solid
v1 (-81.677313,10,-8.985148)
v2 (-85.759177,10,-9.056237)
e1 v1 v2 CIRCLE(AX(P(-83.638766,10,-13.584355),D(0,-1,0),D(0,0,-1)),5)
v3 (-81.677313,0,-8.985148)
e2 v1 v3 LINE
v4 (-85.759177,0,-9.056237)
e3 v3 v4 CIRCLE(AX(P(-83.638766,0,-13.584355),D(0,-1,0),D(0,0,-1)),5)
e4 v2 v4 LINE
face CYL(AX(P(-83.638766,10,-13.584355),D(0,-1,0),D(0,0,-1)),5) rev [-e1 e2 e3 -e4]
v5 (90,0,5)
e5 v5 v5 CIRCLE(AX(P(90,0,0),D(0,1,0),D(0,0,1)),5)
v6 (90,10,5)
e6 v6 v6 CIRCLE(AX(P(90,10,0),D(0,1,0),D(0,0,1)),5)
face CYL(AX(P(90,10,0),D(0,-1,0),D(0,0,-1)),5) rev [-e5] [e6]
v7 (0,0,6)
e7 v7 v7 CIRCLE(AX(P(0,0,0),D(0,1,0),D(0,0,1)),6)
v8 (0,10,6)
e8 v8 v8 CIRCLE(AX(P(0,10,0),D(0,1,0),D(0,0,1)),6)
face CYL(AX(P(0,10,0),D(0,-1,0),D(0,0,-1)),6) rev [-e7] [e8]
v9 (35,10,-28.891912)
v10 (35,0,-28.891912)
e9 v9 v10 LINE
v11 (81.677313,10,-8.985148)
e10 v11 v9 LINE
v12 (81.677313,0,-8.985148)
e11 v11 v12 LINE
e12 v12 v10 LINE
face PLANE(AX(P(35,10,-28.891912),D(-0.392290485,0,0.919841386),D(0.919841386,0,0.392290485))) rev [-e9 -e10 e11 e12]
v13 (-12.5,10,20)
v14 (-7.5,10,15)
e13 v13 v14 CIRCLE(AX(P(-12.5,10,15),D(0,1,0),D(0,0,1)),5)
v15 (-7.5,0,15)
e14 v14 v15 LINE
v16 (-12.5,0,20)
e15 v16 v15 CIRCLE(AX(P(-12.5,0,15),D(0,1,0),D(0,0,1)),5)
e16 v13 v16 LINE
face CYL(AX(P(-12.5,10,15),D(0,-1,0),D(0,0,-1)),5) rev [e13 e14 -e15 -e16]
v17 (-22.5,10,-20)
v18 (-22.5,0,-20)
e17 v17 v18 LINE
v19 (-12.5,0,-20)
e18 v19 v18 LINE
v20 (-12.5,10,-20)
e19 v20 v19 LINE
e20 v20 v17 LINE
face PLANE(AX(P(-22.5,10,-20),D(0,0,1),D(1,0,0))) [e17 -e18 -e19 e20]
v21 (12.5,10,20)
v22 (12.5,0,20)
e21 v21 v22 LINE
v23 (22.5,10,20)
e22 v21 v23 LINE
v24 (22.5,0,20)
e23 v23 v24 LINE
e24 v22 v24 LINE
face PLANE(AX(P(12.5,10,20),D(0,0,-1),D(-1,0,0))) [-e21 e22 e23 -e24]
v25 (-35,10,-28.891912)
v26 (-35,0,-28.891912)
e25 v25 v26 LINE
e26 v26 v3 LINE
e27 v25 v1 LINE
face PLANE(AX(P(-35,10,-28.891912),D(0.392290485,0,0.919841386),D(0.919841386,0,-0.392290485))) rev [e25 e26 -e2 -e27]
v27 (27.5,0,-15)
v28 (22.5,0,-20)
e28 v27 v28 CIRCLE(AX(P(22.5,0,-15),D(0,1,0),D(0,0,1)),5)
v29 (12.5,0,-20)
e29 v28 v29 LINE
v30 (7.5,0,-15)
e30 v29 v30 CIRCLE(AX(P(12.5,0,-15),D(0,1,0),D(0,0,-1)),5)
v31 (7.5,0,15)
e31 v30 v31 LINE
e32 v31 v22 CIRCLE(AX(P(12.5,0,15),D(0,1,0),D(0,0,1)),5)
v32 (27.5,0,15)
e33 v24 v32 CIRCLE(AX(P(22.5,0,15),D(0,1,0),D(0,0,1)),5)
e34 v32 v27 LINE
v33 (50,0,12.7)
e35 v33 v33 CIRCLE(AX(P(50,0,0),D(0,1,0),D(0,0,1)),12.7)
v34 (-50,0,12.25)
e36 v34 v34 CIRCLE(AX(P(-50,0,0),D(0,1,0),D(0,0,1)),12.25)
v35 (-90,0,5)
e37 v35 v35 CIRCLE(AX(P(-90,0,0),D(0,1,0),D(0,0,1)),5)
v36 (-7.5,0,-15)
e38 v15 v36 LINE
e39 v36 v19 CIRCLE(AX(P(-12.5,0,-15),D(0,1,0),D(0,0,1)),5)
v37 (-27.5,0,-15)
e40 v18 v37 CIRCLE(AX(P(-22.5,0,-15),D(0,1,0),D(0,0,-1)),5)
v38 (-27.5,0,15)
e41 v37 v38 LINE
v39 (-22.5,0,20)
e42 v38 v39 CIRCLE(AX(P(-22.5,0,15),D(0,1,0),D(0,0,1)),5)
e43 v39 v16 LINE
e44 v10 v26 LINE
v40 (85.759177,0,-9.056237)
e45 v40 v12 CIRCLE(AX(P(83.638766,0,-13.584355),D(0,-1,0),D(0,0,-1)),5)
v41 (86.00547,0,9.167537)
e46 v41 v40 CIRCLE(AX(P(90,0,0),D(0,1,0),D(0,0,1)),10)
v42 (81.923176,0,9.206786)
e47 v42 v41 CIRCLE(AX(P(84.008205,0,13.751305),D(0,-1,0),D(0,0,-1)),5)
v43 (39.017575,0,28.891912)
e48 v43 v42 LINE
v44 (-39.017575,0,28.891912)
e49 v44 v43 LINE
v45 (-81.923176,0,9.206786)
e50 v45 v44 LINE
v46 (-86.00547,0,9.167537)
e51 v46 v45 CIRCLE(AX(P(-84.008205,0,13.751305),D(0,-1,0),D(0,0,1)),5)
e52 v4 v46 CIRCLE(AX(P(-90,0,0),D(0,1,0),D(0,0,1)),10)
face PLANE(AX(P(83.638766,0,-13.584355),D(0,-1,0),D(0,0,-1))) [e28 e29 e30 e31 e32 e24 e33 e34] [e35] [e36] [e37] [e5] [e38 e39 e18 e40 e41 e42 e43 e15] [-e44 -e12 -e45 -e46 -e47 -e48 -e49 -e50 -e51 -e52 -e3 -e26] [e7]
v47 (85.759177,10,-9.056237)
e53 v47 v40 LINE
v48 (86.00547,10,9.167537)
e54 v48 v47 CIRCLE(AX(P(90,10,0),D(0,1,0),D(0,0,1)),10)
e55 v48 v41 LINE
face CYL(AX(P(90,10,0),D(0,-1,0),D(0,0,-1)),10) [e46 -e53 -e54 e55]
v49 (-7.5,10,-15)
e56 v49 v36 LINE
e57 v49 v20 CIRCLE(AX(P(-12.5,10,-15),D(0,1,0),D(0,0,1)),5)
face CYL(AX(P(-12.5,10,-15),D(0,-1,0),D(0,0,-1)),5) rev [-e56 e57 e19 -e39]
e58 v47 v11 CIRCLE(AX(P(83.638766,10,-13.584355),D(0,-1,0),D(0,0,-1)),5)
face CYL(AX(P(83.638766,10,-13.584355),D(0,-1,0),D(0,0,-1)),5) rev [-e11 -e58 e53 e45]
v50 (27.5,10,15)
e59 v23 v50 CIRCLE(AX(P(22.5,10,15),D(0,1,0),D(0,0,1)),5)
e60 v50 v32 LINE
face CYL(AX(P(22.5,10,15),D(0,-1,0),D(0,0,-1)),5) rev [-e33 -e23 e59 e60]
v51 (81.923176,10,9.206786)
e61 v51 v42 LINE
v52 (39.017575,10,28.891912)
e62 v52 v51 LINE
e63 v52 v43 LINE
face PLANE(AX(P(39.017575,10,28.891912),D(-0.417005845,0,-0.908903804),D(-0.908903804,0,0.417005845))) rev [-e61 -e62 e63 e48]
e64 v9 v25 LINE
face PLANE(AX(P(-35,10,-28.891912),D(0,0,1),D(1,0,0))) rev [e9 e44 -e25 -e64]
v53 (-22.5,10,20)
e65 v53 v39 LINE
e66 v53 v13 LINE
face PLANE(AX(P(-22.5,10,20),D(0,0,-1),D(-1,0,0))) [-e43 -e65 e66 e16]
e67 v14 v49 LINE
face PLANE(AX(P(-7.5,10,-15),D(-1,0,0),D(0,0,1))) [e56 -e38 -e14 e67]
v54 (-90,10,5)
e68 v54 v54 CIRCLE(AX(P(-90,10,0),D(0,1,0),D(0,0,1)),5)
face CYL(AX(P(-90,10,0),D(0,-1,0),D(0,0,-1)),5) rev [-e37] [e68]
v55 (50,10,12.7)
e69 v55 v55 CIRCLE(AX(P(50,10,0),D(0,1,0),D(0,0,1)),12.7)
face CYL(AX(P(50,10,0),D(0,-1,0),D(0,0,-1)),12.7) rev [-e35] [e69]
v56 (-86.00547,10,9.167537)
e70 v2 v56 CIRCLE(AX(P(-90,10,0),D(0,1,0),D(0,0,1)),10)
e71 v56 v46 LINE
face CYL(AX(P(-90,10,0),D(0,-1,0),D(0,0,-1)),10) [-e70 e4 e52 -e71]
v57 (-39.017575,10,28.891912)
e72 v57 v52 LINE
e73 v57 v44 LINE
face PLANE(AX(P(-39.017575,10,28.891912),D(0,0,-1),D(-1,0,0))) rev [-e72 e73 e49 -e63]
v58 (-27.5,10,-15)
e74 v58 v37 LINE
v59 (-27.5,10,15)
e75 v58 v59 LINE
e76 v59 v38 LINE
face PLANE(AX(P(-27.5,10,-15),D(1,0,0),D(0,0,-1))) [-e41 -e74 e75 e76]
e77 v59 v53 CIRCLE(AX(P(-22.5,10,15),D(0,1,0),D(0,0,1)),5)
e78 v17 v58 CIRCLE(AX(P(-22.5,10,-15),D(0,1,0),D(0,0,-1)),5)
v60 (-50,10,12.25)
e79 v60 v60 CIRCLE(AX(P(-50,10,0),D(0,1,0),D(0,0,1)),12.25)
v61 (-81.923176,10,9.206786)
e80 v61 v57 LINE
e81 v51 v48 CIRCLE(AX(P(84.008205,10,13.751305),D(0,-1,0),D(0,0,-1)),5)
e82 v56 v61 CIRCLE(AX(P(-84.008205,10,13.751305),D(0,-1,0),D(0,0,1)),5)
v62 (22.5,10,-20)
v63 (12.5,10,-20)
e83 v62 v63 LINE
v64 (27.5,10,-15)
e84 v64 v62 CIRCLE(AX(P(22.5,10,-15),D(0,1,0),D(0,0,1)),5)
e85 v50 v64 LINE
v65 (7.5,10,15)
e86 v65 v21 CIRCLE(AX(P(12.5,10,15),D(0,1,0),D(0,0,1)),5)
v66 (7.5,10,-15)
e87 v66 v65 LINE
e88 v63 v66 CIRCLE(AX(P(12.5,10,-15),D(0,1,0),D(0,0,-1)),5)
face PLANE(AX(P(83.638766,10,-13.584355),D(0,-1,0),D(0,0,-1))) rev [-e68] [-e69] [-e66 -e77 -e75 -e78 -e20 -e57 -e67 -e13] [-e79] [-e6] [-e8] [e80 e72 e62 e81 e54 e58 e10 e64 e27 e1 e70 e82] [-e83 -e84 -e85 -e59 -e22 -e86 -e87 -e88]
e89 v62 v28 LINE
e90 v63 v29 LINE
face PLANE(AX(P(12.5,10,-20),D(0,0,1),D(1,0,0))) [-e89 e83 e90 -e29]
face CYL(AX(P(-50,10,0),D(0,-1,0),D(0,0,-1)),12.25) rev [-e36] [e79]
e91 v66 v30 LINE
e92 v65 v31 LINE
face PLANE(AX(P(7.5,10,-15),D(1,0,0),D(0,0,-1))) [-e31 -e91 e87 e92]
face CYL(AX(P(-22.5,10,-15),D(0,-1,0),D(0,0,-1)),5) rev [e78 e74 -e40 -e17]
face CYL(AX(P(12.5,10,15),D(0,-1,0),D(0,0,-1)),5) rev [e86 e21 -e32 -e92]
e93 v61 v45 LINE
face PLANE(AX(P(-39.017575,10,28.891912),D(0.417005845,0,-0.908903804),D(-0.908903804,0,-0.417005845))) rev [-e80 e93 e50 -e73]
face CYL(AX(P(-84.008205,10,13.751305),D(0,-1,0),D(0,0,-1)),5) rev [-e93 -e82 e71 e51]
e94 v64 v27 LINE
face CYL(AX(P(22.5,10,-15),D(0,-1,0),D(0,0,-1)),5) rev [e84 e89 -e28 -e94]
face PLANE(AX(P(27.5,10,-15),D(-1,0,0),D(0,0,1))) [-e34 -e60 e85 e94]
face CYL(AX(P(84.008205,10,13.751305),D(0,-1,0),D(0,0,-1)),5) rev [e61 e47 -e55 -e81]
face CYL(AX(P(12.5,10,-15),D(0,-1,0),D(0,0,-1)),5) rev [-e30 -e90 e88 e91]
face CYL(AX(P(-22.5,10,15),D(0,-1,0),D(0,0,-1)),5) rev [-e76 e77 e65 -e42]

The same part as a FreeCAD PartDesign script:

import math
import FreeCAD as App
import Part
import Sketcher
Q = App.Units.Quantity

doc = App.newDocument("Part")
body = doc.addObject("PartDesign::Body", "Body")

sketch1 = body.newObject("Sketcher::SketchObject", "Sketch")
sketch1.AttachmentSupport = (doc.getObject("XZ_Plane"), [""])
sketch1.MapMode = "FlatFace"
sketch1.addGeometry(Part.LineSegment(App.Vector(35, -28.891912, 0), App.Vector(-35, -28.891912, 0)), False)
sketch1.addGeometry(Part.LineSegment(App.Vector(-35, -28.891912, 0), App.Vector(-81.677313, -8.985148, 0)), False)
sketch1.addGeometry(Part.ArcOfCircle(Part.Circle(App.Vector(-83.638766, -13.584355, 0), App.Vector(0, 0, 1), 5), math.radians(66.902905), math.radians(115.09259)), False)
sketch1.addGeometry(Part.ArcOfCircle(Part.Circle(App.Vector(-90, 0, 0), App.Vector(0, 0, 1), 10), math.radians(66.456013), math.radians(295.09259)), False)
sketch1.addGeometry(Part.ArcOfCircle(Part.Circle(App.Vector(-84.008205, 13.751305, 0), App.Vector(0, 0, 1), 5), math.radians(-113.543987), math.radians(-65.354302)), False)
sketch1.addGeometry(Part.LineSegment(App.Vector(-81.923176, 9.206786, 0), App.Vector(-39.017575, 28.891912, 0)), False)
sketch1.addGeometry(Part.LineSegment(App.Vector(-39.017575, 28.891912, 0), App.Vector(39.017575, 28.891912, 0)), False)
sketch1.addGeometry(Part.LineSegment(App.Vector(39.017575, 28.891912, 0), App.Vector(81.923176, 9.206786, 0)), False)
sketch1.addGeometry(Part.ArcOfCircle(Part.Circle(App.Vector(84.008205, 13.751305, 0), App.Vector(0, 0, 1), 5), math.radians(-114.645698), math.radians(-66.456013)), False)
sketch1.addGeometry(Part.ArcOfCircle(Part.Circle(App.Vector(90, 0, 0), App.Vector(0, 0, 1), 10), math.radians(-115.09259), math.radians(113.543987)), False)
sketch1.addGeometry(Part.ArcOfCircle(Part.Circle(App.Vector(83.638766, -13.584355, 0), App.Vector(0, 0, 1), 5), math.radians(64.90741), math.radians(113.097095)), False)
sketch1.addGeometry(Part.LineSegment(App.Vector(81.677313, -8.985148, 0), App.Vector(35, -28.891912, 0)), False)
sketch1.addGeometry(Part.Circle(App.Vector(90, 0, 0), App.Vector(0, 0, 1), 5), False)
sketch1.addGeometry(Part.Circle(App.Vector(50, 0, 0), App.Vector(0, 0, 1), 12.7), False)
sketch1.addGeometry(Part.LineSegment(App.Vector(12.5, -20, 0), App.Vector(22.5, -20, 0)), False)
sketch1.addGeometry(Part.ArcOfCircle(Part.Circle(App.Vector(22.5, -15, 0), App.Vector(0, 0, 1), 5), math.radians(-90), math.radians(0)), False)
sketch1.addGeometry(Part.LineSegment(App.Vector(27.5, -15, 0), App.Vector(27.5, 15, 0)), False)
sketch1.addGeometry(Part.ArcOfCircle(Part.Circle(App.Vector(22.5, 15, 0), App.Vector(0, 0, 1), 5), math.radians(0), math.radians(90)), False)
sketch1.addGeometry(Part.LineSegment(App.Vector(22.5, 20, 0), App.Vector(12.5, 20, 0)), False)
sketch1.addGeometry(Part.ArcOfCircle(Part.Circle(App.Vector(12.5, 15, 0), App.Vector(0, 0, 1), 5), math.radians(90), math.radians(180)), False)
sketch1.addGeometry(Part.LineSegment(App.Vector(7.5, 15, 0), App.Vector(7.5, -15, 0)), False)
sketch1.addGeometry(Part.ArcOfCircle(Part.Circle(App.Vector(12.5, -15, 0), App.Vector(0, 0, 1), 5), math.radians(180), math.radians(270)), False)
sketch1.addGeometry(Part.Circle(App.Vector(0, 0, 0), App.Vector(0, 0, 1), 6), False)
sketch1.addGeometry(Part.LineSegment(App.Vector(-22.5, -20, 0), App.Vector(-12.5, -20, 0)), False)
sketch1.addGeometry(Part.ArcOfCircle(Part.Circle(App.Vector(-12.5, -15, 0), App.Vector(0, 0, 1), 5), math.radians(-90), math.radians(0)), False)
sketch1.addGeometry(Part.LineSegment(App.Vector(-7.5, -15, 0), App.Vector(-7.5, 15, 0)), False)
sketch1.addGeometry(Part.ArcOfCircle(Part.Circle(App.Vector(-12.5, 15, 0), App.Vector(0, 0, 1), 5), math.radians(0), math.radians(90)), False)
sketch1.addGeometry(Part.LineSegment(App.Vector(-12.5, 20, 0), App.Vector(-22.5, 20, 0)), False)
sketch1.addGeometry(Part.ArcOfCircle(Part.Circle(App.Vector(-22.5, 15, 0), App.Vector(0, 0, 1), 5), math.radians(90), math.radians(180)), False)
sketch1.addGeometry(Part.LineSegment(App.Vector(-27.5, 15, 0), App.Vector(-27.5, -15, 0)), False)
sketch1.addGeometry(Part.ArcOfCircle(Part.Circle(App.Vector(-22.5, -15, 0), App.Vector(0, 0, 1), 5), math.radians(180), math.radians(270)), False)
sketch1.addGeometry(Part.Circle(App.Vector(-50, 0, 0), App.Vector(0, 0, 1), 12.25), False)
sketch1.addGeometry(Part.Circle(App.Vector(-90, 0, 0), App.Vector(0, 0, 1), 5), False)
sketch1.addConstraint(Sketcher.Constraint("Coincident", 0, 2, 1, 1))
sketch1.addConstraint(Sketcher.Constraint("Tangent", 1, 2, 2, 1))
sketch1.addConstraint(Sketcher.Constraint("Tangent", 2, 2, 3, 2))
sketch1.addConstraint(Sketcher.Constraint("Tangent", 3, 1, 4, 1))
sketch1.addConstraint(Sketcher.Constraint("Tangent", 4, 2, 5, 1))
sketch1.addConstraint(Sketcher.Constraint("Coincident", 5, 2, 6, 1))
sketch1.addConstraint(Sketcher.Constraint("Coincident", 6, 2, 7, 1))
sketch1.addConstraint(Sketcher.Constraint("Tangent", 7, 2, 8, 1))
sketch1.addConstraint(Sketcher.Constraint("Tangent", 8, 2, 9, 2))
sketch1.addConstraint(Sketcher.Constraint("Tangent", 9, 1, 10, 1))
sketch1.addConstraint(Sketcher.Constraint("Tangent", 10, 2, 11, 1))
sketch1.addConstraint(Sketcher.Constraint("Coincident", 11, 2, 0, 1))
sketch1.addConstraint(Sketcher.Constraint("Tangent", 14, 2, 15, 1))
sketch1.addConstraint(Sketcher.Constraint("Tangent", 15, 2, 16, 1))
sketch1.addConstraint(Sketcher.Constraint("Tangent", 16, 2, 17, 1))
sketch1.addConstraint(Sketcher.Constraint("Tangent", 17, 2, 18, 1))
sketch1.addConstraint(Sketcher.Constraint("Tangent", 18, 2, 19, 1))
sketch1.addConstraint(Sketcher.Constraint("Tangent", 19, 2, 20, 1))
sketch1.addConstraint(Sketcher.Constraint("Tangent", 20, 2, 21, 1))
sketch1.addConstraint(Sketcher.Constraint("Tangent", 21, 2, 14, 1))
sketch1.addConstraint(Sketcher.Constraint("Tangent", 23, 2, 24, 1))
sketch1.addConstraint(Sketcher.Constraint("Tangent", 24, 2, 25, 1))
sketch1.addConstraint(Sketcher.Constraint("Tangent", 25, 2, 26, 1))
sketch1.addConstraint(Sketcher.Constraint("Tangent", 26, 2, 27, 1))
sketch1.addConstraint(Sketcher.Constraint("Tangent", 27, 2, 28, 1))
sketch1.addConstraint(Sketcher.Constraint("Tangent", 28, 2, 29, 1))
sketch1.addConstraint(Sketcher.Constraint("Tangent", 29, 2, 30, 1))
sketch1.addConstraint(Sketcher.Constraint("Tangent", 30, 2, 23, 1))
sketch1.addConstraint(Sketcher.Constraint("Horizontal", 0))
sketch1.addConstraint(Sketcher.Constraint("Horizontal", 6))
sketch1.addConstraint(Sketcher.Constraint("Horizontal", 14))
sketch1.addConstraint(Sketcher.Constraint("Vertical", 16))
sketch1.addConstraint(Sketcher.Constraint("Horizontal", 18))
sketch1.addConstraint(Sketcher.Constraint("Vertical", 20))
sketch1.addConstraint(Sketcher.Constraint("Horizontal", 23))
sketch1.addConstraint(Sketcher.Constraint("Vertical", 25))
sketch1.addConstraint(Sketcher.Constraint("Horizontal", 27))
sketch1.addConstraint(Sketcher.Constraint("Vertical", 29))
sketch1.addConstraint(Sketcher.Constraint("Coincident", 22, 3, -1, 1))
sketch1.addConstraint(Sketcher.Constraint("Coincident", 12, 3, 9, 3))
sketch1.addConstraint(Sketcher.Constraint("Coincident", 32, 3, 3, 3))
sketch1.addConstraint(Sketcher.Constraint("Equal", 2, 4))
sketch1.addConstraint(Sketcher.Constraint("Equal", 4, 8))
sketch1.addConstraint(Sketcher.Constraint("Equal", 3, 9))
sketch1.addConstraint(Sketcher.Constraint("Equal", 8, 10))
sketch1.addConstraint(Sketcher.Constraint("Equal", 10, 12))
sketch1.addConstraint(Sketcher.Constraint("Equal", 12, 15))
sketch1.addConstraint(Sketcher.Constraint("Equal", 15, 17))
sketch1.addConstraint(Sketcher.Constraint("Equal", 17, 19))
sketch1.addConstraint(Sketcher.Constraint("Equal", 19, 21))
sketch1.addConstraint(Sketcher.Constraint("Equal", 21, 24))
sketch1.addConstraint(Sketcher.Constraint("Equal", 24, 26))
sketch1.addConstraint(Sketcher.Constraint("Equal", 26, 28))
sketch1.addConstraint(Sketcher.Constraint("Equal", 28, 30))
sketch1.addConstraint(Sketcher.Constraint("Equal", 30, 32))
sketch1.addConstraint(Sketcher.Constraint("Symmetric", 3, 3, 9, 3, -1, 1))
sketch1.addConstraint(Sketcher.Constraint("Symmetric", 19, 3, 24, 3, -1, 1))
sketch1.addConstraint(Sketcher.Constraint("Symmetric", 15, 3, 28, 3, -1, 1))
sketch1.addConstraint(Sketcher.Constraint("Symmetric", 13, 3, 31, 3, -1, 1))
sketch1.addConstraint(Sketcher.Constraint("Symmetric", 4, 3, 8, 3, -2))
sketch1.addConstraint(Sketcher.Constraint("Symmetric", 1, 2, 10, 2, -2))
sketch1.addConstraint(Sketcher.Constraint("PointOnObject", 13, 3, -1))
sketch1.addConstraint(Sketcher.Constraint("Horizontal", 21, 3, 24, 3))
sketch1.addConstraint(Sketcher.Constraint("Horizontal", 4, 2, 7, 2))
sketch1.addConstraint(Sketcher.Constraint("Diameter", 12, Q("10 mm")))
sketch1.addConstraint(Sketcher.Constraint("Diameter", 22, Q("12 mm")))
sketch1.addConstraint(Sketcher.Constraint("Radius", 3, Q("10 mm")))
sketch1.addConstraint(Sketcher.Constraint("Diameter", 13, Q("25.4 mm")))
sketch1.addConstraint(Sketcher.Constraint("Diameter", 31, Q("24.5 mm")))
sketch1.addConstraint(Sketcher.Constraint("DistanceX", 0, 2, 0, 1, Q("70 mm")))
sketch1.addConstraint(Sketcher.Constraint("DistanceX", 14, 1, 14, 2, Q("10 mm")))
sketch1.addConstraint(Sketcher.Constraint("DistanceY", 16, 1, 16, 2, Q("30 mm")))
sketch1.addConstraint(Sketcher.Constraint("DistanceX", 3, 3, -1, 1, Q("90 mm")))
sketch1.addConstraint(Sketcher.Constraint("DistanceX", -1, 1, 13, 3, Q("50 mm")))
sketch1.addConstraint(Sketcher.Constraint("DistanceX", 24, 3, 21, 3, Q("25 mm")))
sketch1.addConstraint(Sketcher.Constraint("DistanceX", 7, 2, 9, 1, Q("3.836001 mm")))
sketch1.addConstraint(Sketcher.Constraint("DistanceX", 6, 1, 6, 2, Q("78.035151 mm")))
sketch1.addConstraint(Sketcher.Constraint("DistanceX", 4, 2, 5, 2, Q("42.9056 mm")))
sketch1.addConstraint(Sketcher.Constraint("Distance", 1, Q("50.744959 mm")))
sketch1.addConstraint(Sketcher.Constraint("DistanceX", 3, 1, -1, 1, Q("86.00547 mm")))
pad1 = body.newObject("PartDesign::Pad", "Pad")
pad1.Profile = sketch1
pad1.Length = 10
pad1.Reversed = True

doc.recompute()
